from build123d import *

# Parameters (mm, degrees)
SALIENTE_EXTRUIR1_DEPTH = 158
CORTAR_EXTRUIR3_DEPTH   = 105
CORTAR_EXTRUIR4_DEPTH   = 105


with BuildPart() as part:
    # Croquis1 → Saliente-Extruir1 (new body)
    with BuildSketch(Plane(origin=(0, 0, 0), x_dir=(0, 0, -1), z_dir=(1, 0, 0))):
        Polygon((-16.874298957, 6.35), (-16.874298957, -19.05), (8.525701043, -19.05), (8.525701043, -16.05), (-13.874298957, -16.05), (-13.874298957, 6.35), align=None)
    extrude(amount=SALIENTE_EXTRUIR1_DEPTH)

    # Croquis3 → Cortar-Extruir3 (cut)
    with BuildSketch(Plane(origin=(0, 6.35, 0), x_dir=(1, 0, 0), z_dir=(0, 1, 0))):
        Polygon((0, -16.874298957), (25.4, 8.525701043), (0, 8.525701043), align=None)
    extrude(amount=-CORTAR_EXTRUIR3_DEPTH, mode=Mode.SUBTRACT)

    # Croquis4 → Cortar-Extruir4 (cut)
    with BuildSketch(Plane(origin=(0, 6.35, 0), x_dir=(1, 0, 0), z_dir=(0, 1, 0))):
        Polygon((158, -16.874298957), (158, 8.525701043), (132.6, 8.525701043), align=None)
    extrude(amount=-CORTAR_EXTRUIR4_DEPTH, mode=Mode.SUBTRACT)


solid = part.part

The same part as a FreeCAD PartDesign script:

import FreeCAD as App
import Part
import Sketcher

V = App.Vector
Q = App.Units.Quantity

doc = App.newDocument("Part")
params = doc.addObject("Spreadsheet::Sheet", "Params")
for row, (alias, value) in enumerate([
    ("sketch1_width", "3 mm"),
    ("sketch1_width2", "25.4 mm"),
    ("pad1_length", "158 mm"),
    ("sketch2_width", "25.4 mm"),
    ("pocket1_length", "105 mm"),
    ("sketch3_width", "25.4 mm"),
    ("pocket2_length", "105 mm"),
], start=1):
    params.set(f"A{row}", alias)
    params.set(f"B{row}", "=" + value)
    params.setAlias(f"B{row}", alias)

body = doc.addObject("PartDesign::Body", "Body")

# Sketch on YZ plane
sketch1 = body.newObject("Sketcher::SketchObject", "Sketch")
sketch1.AttachmentSupport = (doc.getObject("YZ_Plane"), [""])
sketch1.MapMode = "FlatFace"
sketch1.addGeometry([
    Part.LineSegment(V(6.3, 16.9, 0), V(-19.1, 16.9, 0)),  # 0
    Part.LineSegment(V(-19.1, 16.9, 0), V(-19.1, -8.5, 0)),  # 1
    Part.LineSegment(V(-19.1, -8.5, 0), V(-16.1, -8.5, 0)),  # 2
    Part.LineSegment(V(-16.1, -8.5, 0), V(-16.1, 13.9, 0)),  # 3
    Part.LineSegment(V(-16.1, 13.9, 0), V(6.3, 13.9, 0)),  # 4
    Part.LineSegment(V(6.3, 13.9, 0), V(6.3, 16.9, 0)),  # 5
], False)
sketch1.addConstraint([
    Sketcher.Constraint("Coincident", 0, 2, 1, 1),
    Sketcher.Constraint("Coincident", 1, 2, 2, 1),
    Sketcher.Constraint("Coincident", 2, 2, 3, 1),
    Sketcher.Constraint("Coincident", 3, 2, 4, 1),
    Sketcher.Constraint("Coincident", 4, 2, 5, 1),
    Sketcher.Constraint("Coincident", 5, 2, 0, 1),
    Sketcher.Constraint("Horizontal", 0),
    Sketcher.Constraint("Vertical", 1),
    Sketcher.Constraint("Horizontal", 2),
    Sketcher.Constraint("Vertical", 3),
    Sketcher.Constraint("Horizontal", 4),
    Sketcher.Constraint("Vertical", 5),
    Sketcher.Constraint("Equal", 0, 1),
    Sketcher.Constraint("Equal", 4, 3),
    Sketcher.Constraint("DistanceX", 2, 1, 2, 2, Q("3 mm")),
    Sketcher.Constraint("DistanceX", 0, 2, 0, 1, Q("25.4 mm")),
    Sketcher.Constraint("DistanceX", 0, 2, -1, 1, Q("19.05 mm")),
    Sketcher.Constraint("DistanceY", -1, 1, 0, 2, Q("16.874299 mm")),
])
sketch1.setExpression("Constraints[14]", "Params.sketch1_width")
sketch1.setExpression("Constraints[15]", "Params.sketch1_width2")
pad1 = body.newObject("PartDesign::Pad", "Pad")
pad1.Profile = sketch1
pad1.setExpression("Length", "Params.pad1_length")

# Sketch on XZ plane
sketch2 = body.newObject("Sketcher::SketchObject", "Sketch001")
sketch2.AttachmentSupport = (doc.getObject("XZ_Plane"), [""])
sketch2.MapMode = "FlatFace"
sketch2.AttachmentOffset = App.Placement(V(0, 0, -6.35), App.Rotation())
sketch2.addGeometry([
    Part.LineSegment(V(0, 17, 0), V(25, -9, 0)),
    Part.LineSegment(V(25, -9, 0), V(0, -9, 0)),
    Part.LineSegment(V(0, -9, 0), V(0, 17, 0)),
], False)
sketch2.addConstraint([
    Sketcher.Constraint("Coincident", 0, 2, 1, 1),
    Sketcher.Constraint("Coincident", 1, 2, 2, 1),
    Sketcher.Constraint("Coincident", 2, 2, 0, 1),
    Sketcher.Constraint("Horizontal", 1),
    Sketcher.Constraint("Vertical", 2),
    Sketcher.Constraint("PointOnObject", 1, 2, -2),
    Sketcher.Constraint("Equal", 1, 2),
    Sketcher.Constraint("DistanceX", 1, 2, 1, 1, Q("25.4 mm")),
    Sketcher.Constraint("DistanceY", 0, 2, -1, 1, Q("8.525701 mm")),
])
sketch2.setExpression("Constraints[7]", "Params.sketch2_width")
pocket1 = body.newObject("PartDesign::Pocket", "Pocket")
pocket1.Profile = sketch2
pocket1.setExpression("Length", "Params.pocket1_length")
pocket1.Reversed = True

# Sketch on XZ plane
sketch3 = body.newObject("Sketcher::SketchObject", "Sketch002")
sketch3.AttachmentSupport = (doc.getObject("XZ_Plane"), [""])
sketch3.MapMode = "FlatFace"
sketch3.AttachmentOffset = App.Placement(V(0, 0, -6.35), App.Rotation())
sketch3.addGeometry([
    Part.LineSegment(V(158, 17, 0), V(158, -9, 0)),
    Part.LineSegment(V(158, -9, 0), V(133, -9, 0)),
    Part.LineSegment(V(133, -9, 0), V(158, 17, 0)),
], False)
sketch3.addConstraint([
    Sketcher.Constraint("Coincident", 0, 2, 1, 1),
    Sketcher.Constraint("Coincident", 1, 2, 2, 1),
    Sketcher.Constraint("Coincident", 2, 2, 0, 1),
    Sketcher.Constraint("Vertical", 0),
    Sketcher.Constraint("Horizontal", 1),
    Sketcher.Constraint("Equal", 1, 0),
    Sketcher.Constraint("DistanceX", 1, 2, 1, 1, Q("25.4 mm")),
    Sketcher.Constraint("DistanceX", -1, 1, 0, 2, Q("158 mm")),
    Sketcher.Constraint("DistanceY", 0, 2, -1, 1, Q("8.525701 mm")),
])
sketch3.setExpression("Constraints[6]", "Params.sketch3_width")
pocket2 = body.newObject("PartDesign::Pocket", "Pocket001")
pocket2.Profile = sketch3
pocket2.setExpression("Length", "Params.pocket2_length")
pocket2.Reversed = True

doc.recompute()
